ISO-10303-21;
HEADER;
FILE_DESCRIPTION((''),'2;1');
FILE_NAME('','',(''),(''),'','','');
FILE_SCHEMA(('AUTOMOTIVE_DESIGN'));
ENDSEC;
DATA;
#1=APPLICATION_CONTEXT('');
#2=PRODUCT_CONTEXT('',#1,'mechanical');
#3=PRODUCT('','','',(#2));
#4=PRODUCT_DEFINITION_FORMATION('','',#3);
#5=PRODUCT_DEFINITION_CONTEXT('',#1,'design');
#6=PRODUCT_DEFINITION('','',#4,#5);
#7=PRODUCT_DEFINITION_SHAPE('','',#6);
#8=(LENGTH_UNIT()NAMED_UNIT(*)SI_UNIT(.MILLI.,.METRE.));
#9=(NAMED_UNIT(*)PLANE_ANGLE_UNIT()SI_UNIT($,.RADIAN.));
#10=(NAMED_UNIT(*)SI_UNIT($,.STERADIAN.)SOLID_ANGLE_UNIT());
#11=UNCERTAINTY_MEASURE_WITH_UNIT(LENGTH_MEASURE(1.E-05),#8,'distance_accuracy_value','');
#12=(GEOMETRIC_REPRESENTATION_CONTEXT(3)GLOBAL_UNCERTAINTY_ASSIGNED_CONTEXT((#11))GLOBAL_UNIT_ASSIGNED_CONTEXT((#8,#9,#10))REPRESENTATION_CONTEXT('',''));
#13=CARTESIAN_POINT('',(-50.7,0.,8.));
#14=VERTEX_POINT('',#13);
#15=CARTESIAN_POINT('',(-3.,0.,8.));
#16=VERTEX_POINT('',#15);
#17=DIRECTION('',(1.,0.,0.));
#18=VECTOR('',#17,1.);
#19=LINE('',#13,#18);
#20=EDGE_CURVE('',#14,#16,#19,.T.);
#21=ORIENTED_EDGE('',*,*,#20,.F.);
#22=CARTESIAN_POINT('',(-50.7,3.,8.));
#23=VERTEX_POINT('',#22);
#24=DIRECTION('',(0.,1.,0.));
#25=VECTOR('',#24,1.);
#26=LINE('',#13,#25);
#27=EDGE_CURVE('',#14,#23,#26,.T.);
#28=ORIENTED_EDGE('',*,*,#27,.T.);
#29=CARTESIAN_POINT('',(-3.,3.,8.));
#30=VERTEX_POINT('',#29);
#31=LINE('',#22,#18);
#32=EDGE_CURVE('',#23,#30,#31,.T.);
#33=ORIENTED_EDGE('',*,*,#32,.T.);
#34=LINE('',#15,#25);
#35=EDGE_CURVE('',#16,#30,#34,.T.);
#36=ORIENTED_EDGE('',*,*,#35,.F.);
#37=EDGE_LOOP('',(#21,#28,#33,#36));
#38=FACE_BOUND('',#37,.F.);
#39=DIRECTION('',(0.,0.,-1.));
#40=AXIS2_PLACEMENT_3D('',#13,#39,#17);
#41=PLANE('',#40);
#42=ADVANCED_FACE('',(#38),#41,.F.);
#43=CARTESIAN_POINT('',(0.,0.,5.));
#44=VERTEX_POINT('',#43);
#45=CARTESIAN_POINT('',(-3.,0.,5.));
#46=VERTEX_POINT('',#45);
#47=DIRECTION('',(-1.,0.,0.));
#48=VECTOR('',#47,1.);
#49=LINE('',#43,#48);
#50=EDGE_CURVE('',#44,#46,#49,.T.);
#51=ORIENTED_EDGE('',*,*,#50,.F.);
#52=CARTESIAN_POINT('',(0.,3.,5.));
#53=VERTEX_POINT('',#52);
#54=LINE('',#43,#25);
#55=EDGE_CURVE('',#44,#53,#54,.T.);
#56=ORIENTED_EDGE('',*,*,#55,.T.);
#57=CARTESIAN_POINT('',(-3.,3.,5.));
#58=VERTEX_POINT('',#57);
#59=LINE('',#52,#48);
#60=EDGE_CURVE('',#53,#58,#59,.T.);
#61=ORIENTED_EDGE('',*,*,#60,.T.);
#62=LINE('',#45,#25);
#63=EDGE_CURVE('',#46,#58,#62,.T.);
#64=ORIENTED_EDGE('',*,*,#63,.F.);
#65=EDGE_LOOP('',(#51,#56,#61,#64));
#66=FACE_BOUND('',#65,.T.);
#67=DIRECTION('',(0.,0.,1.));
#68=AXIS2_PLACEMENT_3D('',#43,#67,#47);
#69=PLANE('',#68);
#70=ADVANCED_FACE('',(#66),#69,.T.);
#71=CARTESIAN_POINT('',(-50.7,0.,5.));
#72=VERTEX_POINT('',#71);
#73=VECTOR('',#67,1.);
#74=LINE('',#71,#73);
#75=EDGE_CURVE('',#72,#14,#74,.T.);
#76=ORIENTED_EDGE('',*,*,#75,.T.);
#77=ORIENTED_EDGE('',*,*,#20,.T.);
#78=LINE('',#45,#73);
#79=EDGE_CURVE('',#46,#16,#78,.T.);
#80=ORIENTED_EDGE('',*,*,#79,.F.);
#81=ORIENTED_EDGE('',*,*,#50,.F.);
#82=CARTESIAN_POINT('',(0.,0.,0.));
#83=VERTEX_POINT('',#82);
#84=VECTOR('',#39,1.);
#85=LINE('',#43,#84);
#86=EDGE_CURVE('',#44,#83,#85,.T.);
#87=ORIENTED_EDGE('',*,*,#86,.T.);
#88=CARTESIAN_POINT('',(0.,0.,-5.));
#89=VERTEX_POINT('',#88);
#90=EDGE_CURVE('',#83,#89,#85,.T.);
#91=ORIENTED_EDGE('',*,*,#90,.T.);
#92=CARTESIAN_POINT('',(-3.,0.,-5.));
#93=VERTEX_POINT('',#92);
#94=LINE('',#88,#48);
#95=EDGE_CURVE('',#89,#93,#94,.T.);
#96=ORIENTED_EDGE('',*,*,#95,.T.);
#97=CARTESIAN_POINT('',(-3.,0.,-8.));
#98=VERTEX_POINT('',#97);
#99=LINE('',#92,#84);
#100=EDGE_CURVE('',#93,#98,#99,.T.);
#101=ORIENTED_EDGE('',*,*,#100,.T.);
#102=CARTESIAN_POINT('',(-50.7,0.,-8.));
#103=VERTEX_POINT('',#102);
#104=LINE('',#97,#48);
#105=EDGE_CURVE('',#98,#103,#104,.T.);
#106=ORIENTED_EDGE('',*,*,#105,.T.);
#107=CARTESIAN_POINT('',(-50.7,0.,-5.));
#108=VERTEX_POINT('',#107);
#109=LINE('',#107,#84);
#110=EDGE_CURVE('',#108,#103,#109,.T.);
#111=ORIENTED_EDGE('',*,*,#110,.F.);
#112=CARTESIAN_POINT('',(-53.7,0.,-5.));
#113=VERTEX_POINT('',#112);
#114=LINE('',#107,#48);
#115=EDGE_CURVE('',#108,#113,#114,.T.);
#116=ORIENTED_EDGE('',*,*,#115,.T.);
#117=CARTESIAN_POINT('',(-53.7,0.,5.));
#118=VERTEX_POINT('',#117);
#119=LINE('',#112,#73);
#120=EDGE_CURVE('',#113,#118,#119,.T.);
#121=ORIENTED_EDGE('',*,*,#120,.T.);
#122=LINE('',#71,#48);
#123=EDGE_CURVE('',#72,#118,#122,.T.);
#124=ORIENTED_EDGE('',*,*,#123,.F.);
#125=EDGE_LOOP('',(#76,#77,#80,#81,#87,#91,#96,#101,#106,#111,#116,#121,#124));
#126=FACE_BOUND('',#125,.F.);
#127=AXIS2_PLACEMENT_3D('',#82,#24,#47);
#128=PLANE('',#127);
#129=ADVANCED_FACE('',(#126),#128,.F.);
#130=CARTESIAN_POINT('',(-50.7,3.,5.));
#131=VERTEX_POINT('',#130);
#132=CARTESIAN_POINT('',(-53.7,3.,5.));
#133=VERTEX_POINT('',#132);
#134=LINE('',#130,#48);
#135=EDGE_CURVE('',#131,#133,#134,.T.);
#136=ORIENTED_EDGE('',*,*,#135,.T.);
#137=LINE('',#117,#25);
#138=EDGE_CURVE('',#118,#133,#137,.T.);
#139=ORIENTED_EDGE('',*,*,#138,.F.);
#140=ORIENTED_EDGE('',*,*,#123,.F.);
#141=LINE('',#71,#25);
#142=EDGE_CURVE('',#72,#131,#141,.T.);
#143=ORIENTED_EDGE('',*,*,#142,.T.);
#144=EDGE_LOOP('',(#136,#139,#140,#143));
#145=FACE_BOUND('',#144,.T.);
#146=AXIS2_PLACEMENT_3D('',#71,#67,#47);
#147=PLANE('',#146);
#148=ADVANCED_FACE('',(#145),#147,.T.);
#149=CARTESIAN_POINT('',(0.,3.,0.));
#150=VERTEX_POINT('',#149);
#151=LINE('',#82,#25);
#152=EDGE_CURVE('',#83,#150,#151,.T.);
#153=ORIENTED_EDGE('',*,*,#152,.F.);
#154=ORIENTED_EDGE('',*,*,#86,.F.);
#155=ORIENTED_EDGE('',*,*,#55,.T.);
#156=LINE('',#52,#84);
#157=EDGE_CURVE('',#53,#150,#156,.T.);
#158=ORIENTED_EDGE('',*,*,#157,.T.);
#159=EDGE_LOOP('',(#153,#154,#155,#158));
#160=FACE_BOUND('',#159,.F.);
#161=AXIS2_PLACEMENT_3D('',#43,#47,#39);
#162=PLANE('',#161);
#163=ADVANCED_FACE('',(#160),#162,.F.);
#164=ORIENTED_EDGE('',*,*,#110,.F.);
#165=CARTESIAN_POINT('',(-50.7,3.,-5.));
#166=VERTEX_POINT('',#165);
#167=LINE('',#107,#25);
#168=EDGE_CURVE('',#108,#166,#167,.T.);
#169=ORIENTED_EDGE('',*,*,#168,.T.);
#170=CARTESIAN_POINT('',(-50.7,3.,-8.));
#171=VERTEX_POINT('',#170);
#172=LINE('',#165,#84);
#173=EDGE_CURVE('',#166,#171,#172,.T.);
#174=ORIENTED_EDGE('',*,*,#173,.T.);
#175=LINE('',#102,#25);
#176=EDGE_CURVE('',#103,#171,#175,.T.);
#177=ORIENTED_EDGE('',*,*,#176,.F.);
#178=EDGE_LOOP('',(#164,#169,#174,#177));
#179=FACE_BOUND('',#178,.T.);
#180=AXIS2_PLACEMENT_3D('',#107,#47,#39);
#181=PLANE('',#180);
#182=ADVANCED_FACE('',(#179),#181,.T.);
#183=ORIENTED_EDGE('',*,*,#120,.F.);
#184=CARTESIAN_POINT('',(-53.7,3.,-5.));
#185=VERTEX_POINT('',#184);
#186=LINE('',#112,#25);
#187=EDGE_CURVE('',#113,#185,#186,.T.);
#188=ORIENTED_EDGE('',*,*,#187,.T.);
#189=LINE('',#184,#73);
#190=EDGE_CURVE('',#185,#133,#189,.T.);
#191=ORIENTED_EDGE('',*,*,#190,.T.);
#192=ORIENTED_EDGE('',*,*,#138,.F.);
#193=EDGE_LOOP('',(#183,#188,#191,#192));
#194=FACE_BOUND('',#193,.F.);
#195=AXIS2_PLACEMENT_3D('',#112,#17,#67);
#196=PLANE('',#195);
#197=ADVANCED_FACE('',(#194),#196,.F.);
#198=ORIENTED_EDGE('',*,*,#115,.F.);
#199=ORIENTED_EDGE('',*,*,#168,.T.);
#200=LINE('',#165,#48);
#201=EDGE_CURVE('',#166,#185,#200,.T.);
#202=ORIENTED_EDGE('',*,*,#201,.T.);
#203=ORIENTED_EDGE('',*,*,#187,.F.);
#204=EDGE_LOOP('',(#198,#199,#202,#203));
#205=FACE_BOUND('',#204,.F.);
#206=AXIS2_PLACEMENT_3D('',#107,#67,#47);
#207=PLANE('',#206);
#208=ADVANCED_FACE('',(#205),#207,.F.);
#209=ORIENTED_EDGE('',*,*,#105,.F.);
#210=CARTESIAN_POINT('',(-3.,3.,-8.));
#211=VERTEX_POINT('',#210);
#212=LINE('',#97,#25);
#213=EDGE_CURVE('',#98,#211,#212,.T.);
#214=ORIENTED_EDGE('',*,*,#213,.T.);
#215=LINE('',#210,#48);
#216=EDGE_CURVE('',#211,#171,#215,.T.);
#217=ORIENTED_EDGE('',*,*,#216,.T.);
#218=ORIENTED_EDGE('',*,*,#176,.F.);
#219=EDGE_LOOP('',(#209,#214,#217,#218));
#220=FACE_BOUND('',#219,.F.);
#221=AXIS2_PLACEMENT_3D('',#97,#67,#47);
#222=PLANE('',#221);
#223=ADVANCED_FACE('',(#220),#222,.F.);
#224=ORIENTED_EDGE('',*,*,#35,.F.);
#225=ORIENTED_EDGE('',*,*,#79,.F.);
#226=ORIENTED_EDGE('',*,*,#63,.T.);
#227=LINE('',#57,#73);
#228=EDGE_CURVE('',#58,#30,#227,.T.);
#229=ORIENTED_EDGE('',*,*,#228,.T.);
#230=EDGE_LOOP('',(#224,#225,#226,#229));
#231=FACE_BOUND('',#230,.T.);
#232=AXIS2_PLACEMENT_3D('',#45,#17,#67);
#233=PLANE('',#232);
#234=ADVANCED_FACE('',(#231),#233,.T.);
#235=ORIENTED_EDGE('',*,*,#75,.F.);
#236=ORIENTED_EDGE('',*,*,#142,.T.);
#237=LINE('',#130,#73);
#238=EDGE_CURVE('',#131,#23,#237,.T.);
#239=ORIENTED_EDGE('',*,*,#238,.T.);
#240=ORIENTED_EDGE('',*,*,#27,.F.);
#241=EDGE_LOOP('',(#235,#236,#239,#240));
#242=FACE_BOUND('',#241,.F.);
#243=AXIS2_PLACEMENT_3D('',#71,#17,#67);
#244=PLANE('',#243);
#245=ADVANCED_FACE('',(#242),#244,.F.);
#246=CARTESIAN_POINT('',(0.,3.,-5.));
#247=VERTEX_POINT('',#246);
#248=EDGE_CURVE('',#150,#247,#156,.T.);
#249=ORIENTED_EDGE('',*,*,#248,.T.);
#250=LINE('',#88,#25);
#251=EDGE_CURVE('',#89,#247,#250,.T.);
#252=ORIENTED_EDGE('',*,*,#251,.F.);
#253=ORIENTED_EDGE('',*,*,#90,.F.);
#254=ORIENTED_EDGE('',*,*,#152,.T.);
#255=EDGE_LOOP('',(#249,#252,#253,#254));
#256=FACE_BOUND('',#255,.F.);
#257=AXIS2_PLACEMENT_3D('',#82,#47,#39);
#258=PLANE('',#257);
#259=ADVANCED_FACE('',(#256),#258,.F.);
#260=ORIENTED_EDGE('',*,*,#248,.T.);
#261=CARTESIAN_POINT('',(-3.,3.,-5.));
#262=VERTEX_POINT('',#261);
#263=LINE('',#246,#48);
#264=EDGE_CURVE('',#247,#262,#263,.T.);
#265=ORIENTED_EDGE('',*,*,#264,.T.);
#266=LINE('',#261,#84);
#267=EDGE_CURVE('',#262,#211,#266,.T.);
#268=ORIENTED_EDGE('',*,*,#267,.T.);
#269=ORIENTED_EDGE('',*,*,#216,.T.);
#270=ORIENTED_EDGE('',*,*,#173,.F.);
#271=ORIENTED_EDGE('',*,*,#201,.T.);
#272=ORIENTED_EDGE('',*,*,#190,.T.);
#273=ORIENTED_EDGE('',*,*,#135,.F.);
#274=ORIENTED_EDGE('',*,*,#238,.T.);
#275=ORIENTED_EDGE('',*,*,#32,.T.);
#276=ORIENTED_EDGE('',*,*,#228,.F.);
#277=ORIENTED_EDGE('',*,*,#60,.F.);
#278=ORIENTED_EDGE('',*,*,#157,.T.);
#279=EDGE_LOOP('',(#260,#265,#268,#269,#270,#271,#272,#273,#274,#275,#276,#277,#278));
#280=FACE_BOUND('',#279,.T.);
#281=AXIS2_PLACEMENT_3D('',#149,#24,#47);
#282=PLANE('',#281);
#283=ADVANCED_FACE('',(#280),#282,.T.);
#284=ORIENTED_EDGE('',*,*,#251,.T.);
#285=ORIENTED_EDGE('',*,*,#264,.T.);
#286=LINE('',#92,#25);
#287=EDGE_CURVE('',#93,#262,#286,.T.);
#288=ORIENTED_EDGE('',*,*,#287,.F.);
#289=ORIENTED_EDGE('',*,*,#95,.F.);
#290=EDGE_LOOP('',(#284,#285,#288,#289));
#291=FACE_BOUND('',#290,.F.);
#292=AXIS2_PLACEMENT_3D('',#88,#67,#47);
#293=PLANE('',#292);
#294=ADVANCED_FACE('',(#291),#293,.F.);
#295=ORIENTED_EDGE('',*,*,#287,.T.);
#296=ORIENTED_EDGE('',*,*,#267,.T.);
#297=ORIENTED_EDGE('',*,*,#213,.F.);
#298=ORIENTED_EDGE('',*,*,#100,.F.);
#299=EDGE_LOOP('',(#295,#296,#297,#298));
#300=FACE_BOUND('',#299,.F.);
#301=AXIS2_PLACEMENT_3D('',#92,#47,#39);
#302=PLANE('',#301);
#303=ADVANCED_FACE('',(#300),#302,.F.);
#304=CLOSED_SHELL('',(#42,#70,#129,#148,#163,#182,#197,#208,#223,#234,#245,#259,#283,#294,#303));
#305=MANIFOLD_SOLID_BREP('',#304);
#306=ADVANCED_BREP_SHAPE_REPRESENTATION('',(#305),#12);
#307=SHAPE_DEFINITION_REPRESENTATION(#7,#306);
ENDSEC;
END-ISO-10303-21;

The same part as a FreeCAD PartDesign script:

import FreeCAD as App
import Part
import Sketcher

V = App.Vector
Q = App.Units.Quantity

doc = App.newDocument("Part")
body = doc.addObject("PartDesign::Body", "Body")

# Sketch on XZ plane
sketch1 = body.newObject("Sketcher::SketchObject", "Sketch")
sketch1.AttachmentSupport = (doc.getObject("XZ_Plane"), [""])
sketch1.MapMode = "FlatFace"
sketch1.addGeometry([
    Part.LineSegment(V(-3, 5, 0), V(0, 5, 0)),  # 0
    Part.LineSegment(V(0, 5, 0), V(0, -5, 0)),  # 1
    Part.LineSegment(V(0, -5, 0), V(-3, -5, 0)),  # 2
    Part.LineSegment(V(-3, -5, 0), V(-3, -8, 0)),  # 3
    Part.LineSegment(V(-3, -8, 0), V(-50.7, -8, 0)),  # 4
    Part.LineSegment(V(-50.7, -8, 0), V(-50.7, -5, 0)),  # 5
    Part.LineSegment(V(-50.7, -5, 0), V(-53.7, -5, 0)),  # 6
    Part.LineSegment(V(-53.7, -5, 0), V(-53.7, 5, 0)),  # 7
    Part.LineSegment(V(-53.7, 5, 0), V(-50.7, 5, 0)),  # 8
    Part.LineSegment(V(-50.7, 5, 0), V(-50.7, 8, 0)),  # 9
    Part.LineSegment(V(-50.7, 8, 0), V(-3, 8, 0)),  # 10
    Part.LineSegment(V(-3, 8, 0), V(-3, 5, 0)),  # 11
], False)
sketch1.addConstraint([
    Sketcher.Constraint("Coincident", 0, 2, 1, 1),
    Sketcher.Constraint("Coincident", 1, 2, 2, 1),
    Sketcher.Constraint("Coincident", 2, 2, 3, 1),
    Sketcher.Constraint("Coincident", 3, 2, 4, 1),
    Sketcher.Constraint("Coincident", 4, 2, 5, 1),
    Sketcher.Constraint("Coincident", 5, 2, 6, 1),
    Sketcher.Constraint("Coincident", 6, 2, 7, 1),
    Sketcher.Constraint("Coincident", 7, 2, 8, 1),
    Sketcher.Constraint("Coincident", 8, 2, 9, 1),
    Sketcher.Constraint("Coincident", 9, 2, 10, 1),
    Sketcher.Constraint("Coincident", 10, 2, 11, 1),
    Sketcher.Constraint("Coincident", 11, 2, 0, 1),
    Sketcher.Constraint("Horizontal", 0),
    Sketcher.Constraint("Vertical", 1),
    Sketcher.Constraint("Horizontal", 2),
    Sketcher.Constraint("Vertical", 3),
    Sketcher.Constraint("Horizontal", 4),
    Sketcher.Constraint("Vertical", 5),
    Sketcher.Constraint("Horizontal", 6),
    Sketcher.Constraint("Vertical", 7),
    Sketcher.Constraint("Horizontal", 8),
    Sketcher.Constraint("Vertical", 9),
    Sketcher.Constraint("Horizontal", 10),
    Sketcher.Constraint("Vertical", 11),
    Sketcher.Constraint("Symmetric", 0, 2, 1, 2, -1, 1),
    Sketcher.Constraint("Symmetric", 5, 2, 8, 2, -1),
    Sketcher.Constraint("Symmetric", 3, 2, 10, 2, -1),
    Sketcher.Constraint("Horizontal", 2, 2, 5, 2),
    Sketcher.Constraint("Equal", 2, 6),
    Sketcher.Constraint("Equal", 8, 3),
    Sketcher.Constraint("DistanceX", 0, 1, 0, 2, Q("3 mm")),
    Sketcher.Constraint("DistanceY", 1, 2, 1, 1, Q("10 mm")),
    Sketcher.Constraint("DistanceX", 6, 2, -1, 1, Q("53.7 mm")),
])
pad1 = body.newObject("PartDesign::Pad", "Pad")
pad1.Profile = sketch1
pad1.Length = 3
pad1.Reversed = True

doc.recompute()
